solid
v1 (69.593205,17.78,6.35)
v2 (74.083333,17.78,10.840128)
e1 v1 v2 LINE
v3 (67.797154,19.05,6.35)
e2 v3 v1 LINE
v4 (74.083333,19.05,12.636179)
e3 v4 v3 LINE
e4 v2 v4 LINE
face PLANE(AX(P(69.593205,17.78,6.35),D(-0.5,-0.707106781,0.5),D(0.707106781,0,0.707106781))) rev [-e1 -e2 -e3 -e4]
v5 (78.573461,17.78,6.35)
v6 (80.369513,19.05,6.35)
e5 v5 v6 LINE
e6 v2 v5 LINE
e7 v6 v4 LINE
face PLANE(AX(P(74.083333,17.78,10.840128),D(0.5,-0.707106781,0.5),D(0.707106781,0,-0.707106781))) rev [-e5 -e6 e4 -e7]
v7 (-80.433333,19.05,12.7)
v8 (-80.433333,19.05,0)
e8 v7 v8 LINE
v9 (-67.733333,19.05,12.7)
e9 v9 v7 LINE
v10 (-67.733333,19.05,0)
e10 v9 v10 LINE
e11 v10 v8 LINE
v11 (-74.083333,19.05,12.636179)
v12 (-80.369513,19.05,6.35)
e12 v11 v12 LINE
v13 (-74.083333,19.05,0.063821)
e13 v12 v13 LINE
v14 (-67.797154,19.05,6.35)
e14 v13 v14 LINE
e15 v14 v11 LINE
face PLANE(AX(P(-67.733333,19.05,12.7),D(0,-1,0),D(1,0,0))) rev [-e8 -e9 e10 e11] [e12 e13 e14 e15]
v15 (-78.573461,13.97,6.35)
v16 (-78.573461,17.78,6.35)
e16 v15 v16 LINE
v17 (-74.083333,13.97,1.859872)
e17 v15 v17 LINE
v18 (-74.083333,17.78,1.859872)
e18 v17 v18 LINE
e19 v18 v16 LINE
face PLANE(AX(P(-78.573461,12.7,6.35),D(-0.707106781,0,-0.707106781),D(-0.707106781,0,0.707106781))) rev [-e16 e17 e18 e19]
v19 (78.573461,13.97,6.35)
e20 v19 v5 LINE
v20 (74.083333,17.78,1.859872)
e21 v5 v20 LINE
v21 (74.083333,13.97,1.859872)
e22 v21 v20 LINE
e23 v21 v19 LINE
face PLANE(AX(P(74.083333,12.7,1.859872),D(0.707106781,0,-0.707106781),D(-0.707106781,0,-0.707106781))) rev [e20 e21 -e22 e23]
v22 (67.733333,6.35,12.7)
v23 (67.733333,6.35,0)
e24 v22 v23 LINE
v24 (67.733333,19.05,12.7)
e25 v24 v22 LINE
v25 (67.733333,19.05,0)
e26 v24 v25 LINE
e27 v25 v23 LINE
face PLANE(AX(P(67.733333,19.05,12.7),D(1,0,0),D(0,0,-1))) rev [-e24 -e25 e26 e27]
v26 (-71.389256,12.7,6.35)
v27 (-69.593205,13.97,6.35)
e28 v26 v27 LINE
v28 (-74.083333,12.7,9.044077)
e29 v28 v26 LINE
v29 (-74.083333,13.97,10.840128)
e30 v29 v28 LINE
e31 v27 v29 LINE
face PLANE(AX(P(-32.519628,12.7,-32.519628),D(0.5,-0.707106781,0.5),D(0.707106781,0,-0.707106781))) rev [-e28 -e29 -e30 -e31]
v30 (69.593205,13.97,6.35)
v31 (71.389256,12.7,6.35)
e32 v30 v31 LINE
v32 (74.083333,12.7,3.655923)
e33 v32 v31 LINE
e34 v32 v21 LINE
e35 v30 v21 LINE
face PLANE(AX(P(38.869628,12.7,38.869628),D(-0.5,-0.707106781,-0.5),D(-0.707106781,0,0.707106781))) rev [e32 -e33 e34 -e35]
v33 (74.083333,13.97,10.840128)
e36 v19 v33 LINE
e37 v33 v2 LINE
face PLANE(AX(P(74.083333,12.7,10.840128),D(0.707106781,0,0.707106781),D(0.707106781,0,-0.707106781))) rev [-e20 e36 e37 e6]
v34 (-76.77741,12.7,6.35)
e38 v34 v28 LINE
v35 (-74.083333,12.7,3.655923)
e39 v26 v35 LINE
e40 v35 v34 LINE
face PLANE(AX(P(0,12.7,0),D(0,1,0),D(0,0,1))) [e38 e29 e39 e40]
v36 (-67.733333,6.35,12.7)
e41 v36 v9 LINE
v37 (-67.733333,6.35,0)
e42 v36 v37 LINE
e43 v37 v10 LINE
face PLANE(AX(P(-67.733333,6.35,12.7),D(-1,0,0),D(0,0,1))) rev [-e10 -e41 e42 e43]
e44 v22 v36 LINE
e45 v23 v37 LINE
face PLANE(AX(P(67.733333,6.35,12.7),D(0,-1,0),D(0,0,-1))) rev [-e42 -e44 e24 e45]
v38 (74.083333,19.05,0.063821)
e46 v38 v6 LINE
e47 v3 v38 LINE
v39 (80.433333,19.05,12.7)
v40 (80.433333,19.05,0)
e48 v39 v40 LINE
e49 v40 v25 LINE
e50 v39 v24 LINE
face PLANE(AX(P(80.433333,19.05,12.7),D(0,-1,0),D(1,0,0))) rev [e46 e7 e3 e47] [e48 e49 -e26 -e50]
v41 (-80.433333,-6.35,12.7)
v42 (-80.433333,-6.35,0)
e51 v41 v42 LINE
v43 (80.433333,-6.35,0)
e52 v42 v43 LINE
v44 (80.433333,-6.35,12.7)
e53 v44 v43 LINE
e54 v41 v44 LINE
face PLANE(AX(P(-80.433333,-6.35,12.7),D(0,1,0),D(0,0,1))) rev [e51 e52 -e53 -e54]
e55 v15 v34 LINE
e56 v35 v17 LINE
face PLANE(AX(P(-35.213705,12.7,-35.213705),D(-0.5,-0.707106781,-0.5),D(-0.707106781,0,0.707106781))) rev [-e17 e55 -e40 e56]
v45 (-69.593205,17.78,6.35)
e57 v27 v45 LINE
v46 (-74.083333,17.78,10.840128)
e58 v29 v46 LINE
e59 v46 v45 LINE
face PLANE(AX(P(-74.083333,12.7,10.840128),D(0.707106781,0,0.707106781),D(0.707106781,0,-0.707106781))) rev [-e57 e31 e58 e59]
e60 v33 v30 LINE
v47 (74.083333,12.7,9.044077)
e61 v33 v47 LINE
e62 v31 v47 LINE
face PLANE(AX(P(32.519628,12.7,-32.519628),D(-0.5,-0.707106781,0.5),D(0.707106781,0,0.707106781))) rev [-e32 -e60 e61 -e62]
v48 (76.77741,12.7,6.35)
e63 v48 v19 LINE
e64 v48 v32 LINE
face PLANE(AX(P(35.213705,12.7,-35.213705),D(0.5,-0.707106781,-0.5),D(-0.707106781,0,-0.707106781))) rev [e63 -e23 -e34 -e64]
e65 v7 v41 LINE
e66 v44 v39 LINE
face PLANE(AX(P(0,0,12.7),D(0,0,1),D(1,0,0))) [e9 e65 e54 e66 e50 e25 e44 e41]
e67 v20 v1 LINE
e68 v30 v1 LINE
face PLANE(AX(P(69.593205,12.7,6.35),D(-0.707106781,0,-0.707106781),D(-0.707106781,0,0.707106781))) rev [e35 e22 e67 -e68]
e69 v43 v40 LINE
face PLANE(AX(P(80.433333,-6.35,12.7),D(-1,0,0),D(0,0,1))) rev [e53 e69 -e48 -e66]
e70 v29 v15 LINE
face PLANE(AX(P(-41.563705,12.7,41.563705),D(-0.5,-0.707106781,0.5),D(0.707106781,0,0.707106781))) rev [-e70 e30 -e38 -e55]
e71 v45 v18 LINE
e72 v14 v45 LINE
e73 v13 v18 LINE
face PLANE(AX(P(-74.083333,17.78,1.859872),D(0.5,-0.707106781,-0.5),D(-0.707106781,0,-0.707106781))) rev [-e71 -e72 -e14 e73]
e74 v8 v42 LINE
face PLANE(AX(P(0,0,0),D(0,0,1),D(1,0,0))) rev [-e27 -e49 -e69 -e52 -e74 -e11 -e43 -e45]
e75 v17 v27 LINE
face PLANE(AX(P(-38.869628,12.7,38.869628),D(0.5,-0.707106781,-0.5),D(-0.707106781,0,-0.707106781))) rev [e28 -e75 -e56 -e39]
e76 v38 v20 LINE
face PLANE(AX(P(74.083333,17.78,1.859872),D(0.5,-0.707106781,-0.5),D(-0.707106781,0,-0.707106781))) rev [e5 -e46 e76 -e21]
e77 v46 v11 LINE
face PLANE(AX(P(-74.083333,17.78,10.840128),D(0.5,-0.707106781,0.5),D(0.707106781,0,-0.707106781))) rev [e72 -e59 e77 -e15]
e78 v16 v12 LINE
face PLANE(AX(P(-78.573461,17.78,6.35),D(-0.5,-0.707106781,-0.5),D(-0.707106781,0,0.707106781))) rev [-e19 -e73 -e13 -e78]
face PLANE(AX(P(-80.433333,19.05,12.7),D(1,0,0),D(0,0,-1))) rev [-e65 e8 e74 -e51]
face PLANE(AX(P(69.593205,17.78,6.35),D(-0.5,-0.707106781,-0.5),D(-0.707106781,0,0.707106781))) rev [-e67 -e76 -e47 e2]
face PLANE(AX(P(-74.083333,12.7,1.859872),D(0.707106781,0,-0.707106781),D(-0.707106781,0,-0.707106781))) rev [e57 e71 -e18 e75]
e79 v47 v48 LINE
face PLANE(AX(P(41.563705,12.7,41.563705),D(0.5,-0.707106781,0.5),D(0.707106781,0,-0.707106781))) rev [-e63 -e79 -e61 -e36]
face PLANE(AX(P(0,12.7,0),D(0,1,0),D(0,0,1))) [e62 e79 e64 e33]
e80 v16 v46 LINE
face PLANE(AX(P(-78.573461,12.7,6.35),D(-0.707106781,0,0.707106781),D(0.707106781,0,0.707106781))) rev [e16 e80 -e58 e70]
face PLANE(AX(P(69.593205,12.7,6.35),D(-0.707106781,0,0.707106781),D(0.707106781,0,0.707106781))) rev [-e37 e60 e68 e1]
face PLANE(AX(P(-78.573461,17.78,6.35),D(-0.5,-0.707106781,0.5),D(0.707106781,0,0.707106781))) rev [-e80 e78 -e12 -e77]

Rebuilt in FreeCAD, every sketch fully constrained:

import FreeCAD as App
import Part
import Sketcher
from FreeCAD import Vector
Q = App.Units.Quantity


def edges_at(feature, points):
    """Names of the edges that pass closest to the given points."""
    edges = feature.Shape.Edges
    near = lambda p: min(range(len(edges)), key=lambda i: edges[i].distToShape(Part.Vertex(*p))[0])
    return sorted({f"Edge{near(p) + 1}" for p in points})

doc = App.newDocument("Part")
body = doc.addObject("PartDesign::Body", "Body")

# Sketch on XY plane
sketch1 = body.newObject("Sketcher::SketchObject", "Sketch")
sketch1.AttachmentSupport = (doc.getObject("XY_Plane"), [""])
sketch1.MapMode = "FlatFace"
sketch1.addGeometry([
    Part.LineSegment(Vector(-80, 19, 0), Vector(-80, -6, 0)),  # 0
    Part.LineSegment(Vector(-80, -6, 0), Vector(80, -6, 0)),  # 1
    Part.LineSegment(Vector(80, -6, 0), Vector(80, 19, 0)),  # 2
    Part.LineSegment(Vector(80, 19, 0), Vector(68, 19, 0)),  # 3
    Part.LineSegment(Vector(68, 19, 0), Vector(68, 6, 0)),  # 4
    Part.LineSegment(Vector(68, 6, 0), Vector(-68, 6, 0)),  # 5
    Part.LineSegment(Vector(-68, 6, 0), Vector(-68, 19, 0)),  # 6
    Part.LineSegment(Vector(-68, 19, 0), Vector(-80, 19, 0)),  # 7
], False)
sketch1.addConstraint([
    Sketcher.Constraint("Coincident", 0, 2, 1, 1),
    Sketcher.Constraint("Coincident", 1, 2, 2, 1),
    Sketcher.Constraint("Coincident", 2, 2, 3, 1),
    Sketcher.Constraint("Coincident", 3, 2, 4, 1),
    Sketcher.Constraint("Coincident", 4, 2, 5, 1),
    Sketcher.Constraint("Coincident", 5, 2, 6, 1),
    Sketcher.Constraint("Coincident", 6, 2, 7, 1),
    Sketcher.Constraint("Coincident", 7, 2, 0, 1),
    Sketcher.Constraint("Vertical", 0),
    Sketcher.Constraint("Horizontal", 1),
    Sketcher.Constraint("Vertical", 2),
    Sketcher.Constraint("Horizontal", 3),
    Sketcher.Constraint("Vertical", 4),
    Sketcher.Constraint("Horizontal", 5),
    Sketcher.Constraint("Vertical", 6),
    Sketcher.Constraint("Horizontal", 7),
    Sketcher.Constraint("Symmetric", 3, 2, 6, 2, -2),
    Sketcher.Constraint("Equal", 3, 7),
    Sketcher.Constraint("Equal", 7, 4),
    Sketcher.Constraint("DistanceY", 0, 2, 0, 1, Q("1 in")),
    Sketcher.Constraint("DistanceX", 3, 2, 3, 1, Q("0.5 in")),
    Sketcher.Constraint("DistanceY", 0, 2, -1, 1, Q("0.25 in")),
    Sketcher.Constraint("DistanceX", 1, 1, 1, 2, 160.866667),
])
pad1 = body.newObject("PartDesign::Pad", "Pad")
pad1.Profile = sketch1
pad1.Length = Q("0.5 in")

# Sketch on XZ plane
sketch2 = body.newObject("Sketcher::SketchObject", "Sketch001")
sketch2.AttachmentSupport = (doc.getObject("XZ_Plane"), [""])
sketch2.MapMode = "FlatFace"
sketch2.AttachmentOffset = App.Placement(Vector(0, 0, -0.75 * 25.4), App.Rotation())
sketch2.addGeometry([
    Part.LineSegment(Vector(-74, 2, 0), Vector(-79, 6, 0)),  # 0
    Part.LineSegment(Vector(-79, 6, 0), Vector(-74, 11, 0)),  # 1
    Part.LineSegment(Vector(-74, 11, 0), Vector(-70, 6, 0)),  # 2
    Part.LineSegment(Vector(-70, 6, 0), Vector(-74, 2, 0)),  # 3
    Part.LineSegment(Vector(74, 2, 0), Vector(70, 6, 0)),  # 4
    Part.LineSegment(Vector(70, 6, 0), Vector(74, 11, 0)),  # 5
    Part.LineSegment(Vector(74, 11, 0), Vector(79, 6, 0)),  # 6
    Part.LineSegment(Vector(79, 6, 0), Vector(74, 2, 0)),  # 7
], False)
sketch2.addConstraint([
    Sketcher.Constraint("Coincident", 0, 2, 1, 1),
    Sketcher.Constraint("Coincident", 1, 2, 2, 1),
    Sketcher.Constraint("Coincident", 2, 2, 3, 1),
    Sketcher.Constraint("Coincident", 3, 2, 0, 1),
    Sketcher.Constraint("Coincident", 4, 2, 5, 1),
    Sketcher.Constraint("Coincident", 5, 2, 6, 1),
    Sketcher.Constraint("Coincident", 6, 2, 7, 1),
    Sketcher.Constraint("Coincident", 7, 2, 4, 1),
    Sketcher.Constraint("Symmetric", 2, 2, 4, 2, -2),
    Sketcher.Constraint("Symmetric", 1, 2, 5, 2, -2),
    Sketcher.Constraint("Symmetric", 0, 2, 6, 2, -2),
    Sketcher.Constraint("Symmetric", 3, 2, 7, 2, -2),
    Sketcher.Constraint("Perpendicular", 0, 1),
    Sketcher.Constraint("Perpendicular", 1, 2),
    Sketcher.Constraint("Perpendicular", 2, 3),
    Sketcher.Constraint("Perpendicular", 3, 4),
    Sketcher.Constraint("Horizontal", 0, 2, 2, 2),
    Sketcher.Constraint("Distance", 0, Q("0.25 in")),
    Sketcher.Constraint("DistanceY", -1, 1, 0, 2, Q("0.25 in")),
    Sketcher.Constraint("DistanceX", 0, 2, -1, 1, 78.573461),
])
pocket1 = body.newObject("PartDesign::Pocket", "Pocket")
pocket1.Profile = sketch2
pocket1.Length = Q("0.25 in")
pocket1.Reversed = True
doc.recompute()

chamfer = body.newObject("PartDesign::Chamfer", "Chamfer")
chamfer.Base = (pocket1, edges_at(pocket1, [
    (-76.328, 12.7, 8.595),
    (-76.328, 12.7, 4.105),
    (-71.838, 12.7, 4.105),
    (-71.838, 12.7, 8.595),
    (-76.328, 19.05, 8.595),
    (-71.838, 19.05, 8.595),
    (-71.838, 19.05, 4.105),
    (-76.328, 19.05, 4.105),
    (71.838, 12.7, 8.595),
    (71.838, 12.7, 4.105),
    (76.328, 12.7, 4.105),
    (76.328, 12.7, 8.595),
    (71.838, 19.05, 8.595),
    (76.328, 19.05, 8.595),
    (76.328, 19.05, 4.105),
    (71.838, 19.05, 4.105),
]))
chamfer.Size = Q("0.05 in")

doc.recompute()
